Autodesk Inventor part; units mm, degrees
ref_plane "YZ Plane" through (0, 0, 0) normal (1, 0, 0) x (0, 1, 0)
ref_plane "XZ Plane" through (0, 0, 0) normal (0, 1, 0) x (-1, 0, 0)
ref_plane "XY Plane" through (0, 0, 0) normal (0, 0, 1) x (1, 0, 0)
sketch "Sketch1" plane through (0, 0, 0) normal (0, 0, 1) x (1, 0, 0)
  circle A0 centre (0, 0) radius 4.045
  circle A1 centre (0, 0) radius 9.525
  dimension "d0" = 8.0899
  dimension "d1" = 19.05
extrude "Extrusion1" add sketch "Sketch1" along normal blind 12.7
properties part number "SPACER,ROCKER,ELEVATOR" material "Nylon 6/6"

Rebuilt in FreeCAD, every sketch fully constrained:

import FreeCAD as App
import Part
import Sketcher
from FreeCAD import Vector
Q = App.Units.Quantity

doc = App.newDocument("Part")
params = doc.addObject("Spreadsheet::Sheet", "Params")
for row, (alias, value) in enumerate([
    ("sketch1_diameter", "0.75 in"),
    ("pad1_length", "0.5 in"),
], start=1):
    params.set(f"A{row}", alias)
    params.set(f"B{row}", "=" + value)
    params.setAlias(f"B{row}", alias)

body = doc.addObject("PartDesign::Body", "Body")

sketch1 = body.newObject("Sketcher::SketchObject", "Sketch")
sketch1.AttachmentSupport = (doc.getObject("XY_Plane"), [""])
sketch1.MapMode = "FlatFace"
sketch1.addGeometry([
    Part.Circle(Vector(0, 0, 0), Vector(0, 0, 1), 9.5),
    Part.Circle(Vector(0, 0, 0), Vector(0, 0, 1), 4),
], False)
sketch1.addConstraint([
    Sketcher.Constraint("Coincident", 0, 3, -1, 1),
    Sketcher.Constraint("Coincident", 1, 3, -1, 1),
    Sketcher.Constraint("Diameter", 0, Q("0.75 in")),
    Sketcher.Constraint("Diameter", 1, Q("0.3185 in")),
])
sketch1.setExpression("Constraints[2]", "Params.sketch1_diameter")
pad1 = body.newObject("PartDesign::Pad", "Pad")
pad1.Profile = sketch1
pad1.setExpression("Length", "Params.pad1_length")

doc.recompute()
